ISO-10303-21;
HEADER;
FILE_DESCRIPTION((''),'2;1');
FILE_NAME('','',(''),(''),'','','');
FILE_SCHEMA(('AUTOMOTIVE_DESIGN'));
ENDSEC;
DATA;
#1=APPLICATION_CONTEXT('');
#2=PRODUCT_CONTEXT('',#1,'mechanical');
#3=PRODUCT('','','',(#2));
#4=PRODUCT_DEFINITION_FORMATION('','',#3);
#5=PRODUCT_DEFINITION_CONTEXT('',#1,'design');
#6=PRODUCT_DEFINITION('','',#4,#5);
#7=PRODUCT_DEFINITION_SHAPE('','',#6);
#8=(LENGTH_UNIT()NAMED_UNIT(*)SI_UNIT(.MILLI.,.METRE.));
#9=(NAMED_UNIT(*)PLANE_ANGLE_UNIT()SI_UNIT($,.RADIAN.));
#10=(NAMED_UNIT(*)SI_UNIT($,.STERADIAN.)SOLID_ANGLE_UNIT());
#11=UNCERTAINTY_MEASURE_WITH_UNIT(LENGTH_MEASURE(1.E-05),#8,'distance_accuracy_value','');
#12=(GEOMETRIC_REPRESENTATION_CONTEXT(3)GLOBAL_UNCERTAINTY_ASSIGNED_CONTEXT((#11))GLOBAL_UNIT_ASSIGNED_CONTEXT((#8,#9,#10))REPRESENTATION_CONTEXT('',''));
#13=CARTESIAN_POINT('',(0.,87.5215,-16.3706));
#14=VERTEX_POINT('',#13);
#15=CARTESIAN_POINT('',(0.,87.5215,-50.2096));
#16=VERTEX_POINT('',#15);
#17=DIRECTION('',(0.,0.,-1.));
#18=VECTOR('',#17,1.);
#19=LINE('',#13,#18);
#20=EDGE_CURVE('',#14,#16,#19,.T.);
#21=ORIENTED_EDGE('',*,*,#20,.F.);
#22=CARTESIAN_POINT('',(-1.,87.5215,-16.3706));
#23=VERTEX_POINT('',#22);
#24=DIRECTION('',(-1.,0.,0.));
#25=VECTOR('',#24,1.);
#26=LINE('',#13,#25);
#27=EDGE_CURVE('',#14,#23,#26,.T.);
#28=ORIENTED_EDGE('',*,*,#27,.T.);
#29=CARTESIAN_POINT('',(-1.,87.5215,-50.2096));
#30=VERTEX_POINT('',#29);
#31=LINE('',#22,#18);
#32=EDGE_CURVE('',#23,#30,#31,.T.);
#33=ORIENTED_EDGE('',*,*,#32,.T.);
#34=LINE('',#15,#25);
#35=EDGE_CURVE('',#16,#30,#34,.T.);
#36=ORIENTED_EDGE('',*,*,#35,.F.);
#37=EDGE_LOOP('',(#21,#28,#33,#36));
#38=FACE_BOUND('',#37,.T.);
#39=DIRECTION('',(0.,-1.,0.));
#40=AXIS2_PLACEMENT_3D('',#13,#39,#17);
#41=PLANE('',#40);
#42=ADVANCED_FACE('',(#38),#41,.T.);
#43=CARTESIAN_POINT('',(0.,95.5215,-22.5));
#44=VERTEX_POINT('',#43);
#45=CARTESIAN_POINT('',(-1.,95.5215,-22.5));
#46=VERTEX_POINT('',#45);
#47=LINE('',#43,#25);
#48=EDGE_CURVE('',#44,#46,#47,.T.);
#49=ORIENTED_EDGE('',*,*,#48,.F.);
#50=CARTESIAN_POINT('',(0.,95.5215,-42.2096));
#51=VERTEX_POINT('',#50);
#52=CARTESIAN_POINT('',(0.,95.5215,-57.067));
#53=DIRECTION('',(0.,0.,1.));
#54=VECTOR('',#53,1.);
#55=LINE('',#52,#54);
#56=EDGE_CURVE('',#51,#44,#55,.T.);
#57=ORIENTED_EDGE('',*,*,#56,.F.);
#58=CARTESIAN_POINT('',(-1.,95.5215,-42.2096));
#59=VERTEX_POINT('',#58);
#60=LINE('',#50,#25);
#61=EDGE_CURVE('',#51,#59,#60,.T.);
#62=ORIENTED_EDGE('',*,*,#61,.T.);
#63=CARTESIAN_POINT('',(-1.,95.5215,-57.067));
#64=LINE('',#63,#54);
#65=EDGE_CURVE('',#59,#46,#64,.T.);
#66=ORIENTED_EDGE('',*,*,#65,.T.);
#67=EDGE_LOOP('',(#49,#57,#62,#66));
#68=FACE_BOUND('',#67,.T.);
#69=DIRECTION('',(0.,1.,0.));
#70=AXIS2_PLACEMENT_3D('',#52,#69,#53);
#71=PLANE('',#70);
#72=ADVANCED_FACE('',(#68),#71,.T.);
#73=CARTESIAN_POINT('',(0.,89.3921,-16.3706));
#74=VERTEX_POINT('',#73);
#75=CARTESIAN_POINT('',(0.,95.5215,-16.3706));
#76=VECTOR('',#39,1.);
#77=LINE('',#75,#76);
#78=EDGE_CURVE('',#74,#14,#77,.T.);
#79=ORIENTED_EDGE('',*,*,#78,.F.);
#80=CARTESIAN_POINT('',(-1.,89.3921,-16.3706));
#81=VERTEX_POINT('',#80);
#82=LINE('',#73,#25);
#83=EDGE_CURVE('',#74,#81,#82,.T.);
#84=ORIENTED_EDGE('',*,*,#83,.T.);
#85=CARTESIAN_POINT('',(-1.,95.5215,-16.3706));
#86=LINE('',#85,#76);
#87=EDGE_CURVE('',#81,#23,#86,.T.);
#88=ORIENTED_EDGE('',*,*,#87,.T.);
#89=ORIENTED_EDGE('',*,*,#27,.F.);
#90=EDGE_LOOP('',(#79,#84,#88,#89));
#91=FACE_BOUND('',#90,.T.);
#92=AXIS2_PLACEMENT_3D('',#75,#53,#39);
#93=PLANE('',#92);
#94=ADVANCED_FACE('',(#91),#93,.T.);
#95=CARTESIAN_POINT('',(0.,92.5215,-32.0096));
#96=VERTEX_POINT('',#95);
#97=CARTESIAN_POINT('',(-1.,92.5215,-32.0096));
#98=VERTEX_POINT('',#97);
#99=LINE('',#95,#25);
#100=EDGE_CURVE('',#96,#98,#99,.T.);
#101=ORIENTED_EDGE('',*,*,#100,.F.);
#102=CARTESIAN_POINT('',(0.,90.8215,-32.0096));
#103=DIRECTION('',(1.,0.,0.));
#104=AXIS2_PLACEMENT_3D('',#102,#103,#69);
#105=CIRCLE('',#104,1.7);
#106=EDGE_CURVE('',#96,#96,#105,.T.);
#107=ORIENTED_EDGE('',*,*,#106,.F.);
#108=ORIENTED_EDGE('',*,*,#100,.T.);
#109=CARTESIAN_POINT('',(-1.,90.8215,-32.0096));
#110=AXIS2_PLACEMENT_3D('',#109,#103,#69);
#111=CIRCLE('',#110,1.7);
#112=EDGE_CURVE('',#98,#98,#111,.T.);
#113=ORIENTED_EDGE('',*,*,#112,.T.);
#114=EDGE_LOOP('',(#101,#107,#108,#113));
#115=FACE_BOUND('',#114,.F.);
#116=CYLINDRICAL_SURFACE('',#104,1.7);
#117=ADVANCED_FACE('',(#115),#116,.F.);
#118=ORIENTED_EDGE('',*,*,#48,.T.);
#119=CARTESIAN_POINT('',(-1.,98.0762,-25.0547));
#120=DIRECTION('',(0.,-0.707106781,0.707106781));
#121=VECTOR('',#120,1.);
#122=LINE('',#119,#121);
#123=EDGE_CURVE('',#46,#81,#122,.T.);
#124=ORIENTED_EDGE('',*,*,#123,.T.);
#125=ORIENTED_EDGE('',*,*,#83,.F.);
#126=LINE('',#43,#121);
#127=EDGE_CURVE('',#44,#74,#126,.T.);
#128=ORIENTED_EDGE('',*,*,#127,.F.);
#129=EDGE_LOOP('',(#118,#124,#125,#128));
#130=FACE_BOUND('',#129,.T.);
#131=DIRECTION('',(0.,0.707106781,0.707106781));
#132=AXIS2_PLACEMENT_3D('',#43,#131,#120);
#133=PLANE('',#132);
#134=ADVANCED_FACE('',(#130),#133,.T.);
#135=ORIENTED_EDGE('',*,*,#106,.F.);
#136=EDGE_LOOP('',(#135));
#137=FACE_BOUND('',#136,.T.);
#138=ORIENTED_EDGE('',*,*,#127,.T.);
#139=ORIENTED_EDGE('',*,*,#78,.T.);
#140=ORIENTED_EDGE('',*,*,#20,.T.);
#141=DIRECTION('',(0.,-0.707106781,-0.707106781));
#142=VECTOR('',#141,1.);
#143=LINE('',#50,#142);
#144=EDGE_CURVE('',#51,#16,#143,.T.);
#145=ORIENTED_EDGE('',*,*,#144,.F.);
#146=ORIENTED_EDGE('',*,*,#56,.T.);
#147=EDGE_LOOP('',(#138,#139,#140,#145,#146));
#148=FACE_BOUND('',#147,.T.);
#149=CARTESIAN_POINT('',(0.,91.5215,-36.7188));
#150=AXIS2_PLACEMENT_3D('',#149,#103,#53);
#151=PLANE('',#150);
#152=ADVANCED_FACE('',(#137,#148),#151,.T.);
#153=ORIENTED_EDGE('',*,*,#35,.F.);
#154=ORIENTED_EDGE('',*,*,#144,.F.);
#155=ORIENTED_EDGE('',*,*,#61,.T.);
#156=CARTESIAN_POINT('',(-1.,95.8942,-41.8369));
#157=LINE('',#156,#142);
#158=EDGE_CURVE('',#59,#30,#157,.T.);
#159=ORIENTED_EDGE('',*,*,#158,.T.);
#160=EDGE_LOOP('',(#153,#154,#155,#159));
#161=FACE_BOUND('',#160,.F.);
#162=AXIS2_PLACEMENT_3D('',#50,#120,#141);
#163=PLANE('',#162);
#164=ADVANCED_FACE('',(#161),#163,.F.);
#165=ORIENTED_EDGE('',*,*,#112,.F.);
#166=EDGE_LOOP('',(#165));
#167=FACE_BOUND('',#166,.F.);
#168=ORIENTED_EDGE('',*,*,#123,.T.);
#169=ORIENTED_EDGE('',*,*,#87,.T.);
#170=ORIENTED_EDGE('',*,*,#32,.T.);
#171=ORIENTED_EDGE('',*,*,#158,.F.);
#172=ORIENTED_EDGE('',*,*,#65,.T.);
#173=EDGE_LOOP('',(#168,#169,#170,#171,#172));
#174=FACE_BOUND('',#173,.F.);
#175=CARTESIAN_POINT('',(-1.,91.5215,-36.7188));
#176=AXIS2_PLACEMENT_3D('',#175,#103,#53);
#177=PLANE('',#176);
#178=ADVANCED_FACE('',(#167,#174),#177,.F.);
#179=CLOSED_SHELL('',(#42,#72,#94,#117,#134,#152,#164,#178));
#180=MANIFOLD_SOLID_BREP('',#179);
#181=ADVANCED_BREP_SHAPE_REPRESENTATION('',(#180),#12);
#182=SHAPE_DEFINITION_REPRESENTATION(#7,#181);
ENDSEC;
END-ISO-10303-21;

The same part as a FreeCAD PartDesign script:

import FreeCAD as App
import Part
import Sketcher


def add_polygon(sketch, points):
    """Adds a closed chain of lines whose ends are joined by coincident constraints."""
    first, n = sketch.GeometryCount, len(points)
    for a, b in zip(points, points[1:] + points[:1]):
        sketch.addGeometry(Part.LineSegment(App.Vector(*a, 0), App.Vector(*b, 0)), False)
    for i in range(n):
        sketch.addConstraint(Sketcher.Constraint("Coincident", first + i, 2, first + (i + 1) % n, 1))

doc = App.newDocument("Part")
body = doc.addObject("PartDesign::Body", "Body")

# Sketch on YZ plane
sketch1 = doc.addObject("Sketcher::SketchObject", "Sketch")
body.addObject(sketch1)
sketch1.AttachmentSupport = (doc.YZ_Plane, [""])
sketch1.MapMode = "FlatFace"
add_polygon(sketch1, [(95.5215, -57.067), (95.5215, -16.3706), (87.5215, -16.3706), (87.5215, -57.067)])  # lines 0-3
sketch1.addGeometry(Part.Circle(App.Vector(90.8215, -32.0096, 0), App.Vector(0, 0, 1), 1.7), False)  # 4
sketch1.addConstraint(Sketcher.Constraint("Vertical", 0))
sketch1.addConstraint(Sketcher.Constraint("Horizontal", 1))
sketch1.addConstraint(Sketcher.Constraint("Vertical", 2))
sketch1.addConstraint(Sketcher.Constraint("Horizontal", 3))
sketch1.addConstraint(Sketcher.Constraint("Diameter", 4, 3.4))
sketch1.addConstraint(Sketcher.Constraint("DistanceX", 1, 2, 1, 1, 8.0))
sketch1.addConstraint(Sketcher.Constraint("DistanceX", -1, 1, 0, 2, 95.5215))
sketch1.addConstraint(Sketcher.Constraint("DistanceX", 4, 3, 0, 2, 4.7))
sketch1.addConstraint(Sketcher.Constraint("DistanceY", 0, 1, 0, 2, 40.6964))
sketch1.addConstraint(Sketcher.Constraint("DistanceY", 2, 2, -1, 1, 57.067))
sketch1.addConstraint(Sketcher.Constraint("DistanceY", 4, 3, 0, 2, 15.639))
pad1 = doc.addObject("PartDesign::Pad", "Pad")
body.addObject(pad1)
pad1.Profile = sketch1
pad1.Length = 1
pad1.Reversed = True

# Sketch on YZ plane
sketch2 = doc.addObject("Sketcher::SketchObject", "Sketch001")
body.addObject(sketch2)
sketch2.AttachmentSupport = (doc.YZ_Plane, [""])
sketch2.MapMode = "FlatFace"
add_polygon(sketch2, [(101.4402, -61.6435), (95.5215, -42.2096), (75.5215, -62.2096)])  # lines 0-2
add_polygon(sketch2, [(75.5215, -2.5), (95.5215, -22.5), (102.577, -7.1332)])  # lines 3-5
sketch2.addConstraint(Sketcher.Constraint("Perpendicular", 1, 3))
sketch2.addConstraint(Sketcher.Constraint("Vertical", 0, 2, 3, 2))
sketch2.addConstraint(Sketcher.Constraint("Vertical", 1, 2, 5, 2))
sketch2.addConstraint(Sketcher.Constraint("Equal", 1, 3))
sketch2.addConstraint(Sketcher.Constraint("DistanceX", 1, 2, 0, 2, 20.0))
sketch2.addConstraint(Sketcher.Constraint("DistanceY", 3, 2, -1, 1, 22.5))
sketch2.addConstraint(Sketcher.Constraint("Distance", 2, 25.925))
sketch2.addConstraint(Sketcher.Constraint("DistanceX", -1, 1, 4, 2, 102.577))
sketch2.addConstraint(Sketcher.Constraint("DistanceY", 2, 2, 0, 2, 19.434))
sketch2.addConstraint(Sketcher.Constraint("Distance", 4, 16.9091))
sketch2.addConstraint(Sketcher.Constraint("Distance", 5, 27.4493))
sketch2.addConstraint(Sketcher.Constraint("DistanceY", 0, 2, -1, 1, 42.2096))
pocket1 = doc.addObject("PartDesign::Pocket", "Pocket")
body.addObject(pocket1)
pocket1.Profile = sketch2
pocket1.Length = 36

doc.recompute()
